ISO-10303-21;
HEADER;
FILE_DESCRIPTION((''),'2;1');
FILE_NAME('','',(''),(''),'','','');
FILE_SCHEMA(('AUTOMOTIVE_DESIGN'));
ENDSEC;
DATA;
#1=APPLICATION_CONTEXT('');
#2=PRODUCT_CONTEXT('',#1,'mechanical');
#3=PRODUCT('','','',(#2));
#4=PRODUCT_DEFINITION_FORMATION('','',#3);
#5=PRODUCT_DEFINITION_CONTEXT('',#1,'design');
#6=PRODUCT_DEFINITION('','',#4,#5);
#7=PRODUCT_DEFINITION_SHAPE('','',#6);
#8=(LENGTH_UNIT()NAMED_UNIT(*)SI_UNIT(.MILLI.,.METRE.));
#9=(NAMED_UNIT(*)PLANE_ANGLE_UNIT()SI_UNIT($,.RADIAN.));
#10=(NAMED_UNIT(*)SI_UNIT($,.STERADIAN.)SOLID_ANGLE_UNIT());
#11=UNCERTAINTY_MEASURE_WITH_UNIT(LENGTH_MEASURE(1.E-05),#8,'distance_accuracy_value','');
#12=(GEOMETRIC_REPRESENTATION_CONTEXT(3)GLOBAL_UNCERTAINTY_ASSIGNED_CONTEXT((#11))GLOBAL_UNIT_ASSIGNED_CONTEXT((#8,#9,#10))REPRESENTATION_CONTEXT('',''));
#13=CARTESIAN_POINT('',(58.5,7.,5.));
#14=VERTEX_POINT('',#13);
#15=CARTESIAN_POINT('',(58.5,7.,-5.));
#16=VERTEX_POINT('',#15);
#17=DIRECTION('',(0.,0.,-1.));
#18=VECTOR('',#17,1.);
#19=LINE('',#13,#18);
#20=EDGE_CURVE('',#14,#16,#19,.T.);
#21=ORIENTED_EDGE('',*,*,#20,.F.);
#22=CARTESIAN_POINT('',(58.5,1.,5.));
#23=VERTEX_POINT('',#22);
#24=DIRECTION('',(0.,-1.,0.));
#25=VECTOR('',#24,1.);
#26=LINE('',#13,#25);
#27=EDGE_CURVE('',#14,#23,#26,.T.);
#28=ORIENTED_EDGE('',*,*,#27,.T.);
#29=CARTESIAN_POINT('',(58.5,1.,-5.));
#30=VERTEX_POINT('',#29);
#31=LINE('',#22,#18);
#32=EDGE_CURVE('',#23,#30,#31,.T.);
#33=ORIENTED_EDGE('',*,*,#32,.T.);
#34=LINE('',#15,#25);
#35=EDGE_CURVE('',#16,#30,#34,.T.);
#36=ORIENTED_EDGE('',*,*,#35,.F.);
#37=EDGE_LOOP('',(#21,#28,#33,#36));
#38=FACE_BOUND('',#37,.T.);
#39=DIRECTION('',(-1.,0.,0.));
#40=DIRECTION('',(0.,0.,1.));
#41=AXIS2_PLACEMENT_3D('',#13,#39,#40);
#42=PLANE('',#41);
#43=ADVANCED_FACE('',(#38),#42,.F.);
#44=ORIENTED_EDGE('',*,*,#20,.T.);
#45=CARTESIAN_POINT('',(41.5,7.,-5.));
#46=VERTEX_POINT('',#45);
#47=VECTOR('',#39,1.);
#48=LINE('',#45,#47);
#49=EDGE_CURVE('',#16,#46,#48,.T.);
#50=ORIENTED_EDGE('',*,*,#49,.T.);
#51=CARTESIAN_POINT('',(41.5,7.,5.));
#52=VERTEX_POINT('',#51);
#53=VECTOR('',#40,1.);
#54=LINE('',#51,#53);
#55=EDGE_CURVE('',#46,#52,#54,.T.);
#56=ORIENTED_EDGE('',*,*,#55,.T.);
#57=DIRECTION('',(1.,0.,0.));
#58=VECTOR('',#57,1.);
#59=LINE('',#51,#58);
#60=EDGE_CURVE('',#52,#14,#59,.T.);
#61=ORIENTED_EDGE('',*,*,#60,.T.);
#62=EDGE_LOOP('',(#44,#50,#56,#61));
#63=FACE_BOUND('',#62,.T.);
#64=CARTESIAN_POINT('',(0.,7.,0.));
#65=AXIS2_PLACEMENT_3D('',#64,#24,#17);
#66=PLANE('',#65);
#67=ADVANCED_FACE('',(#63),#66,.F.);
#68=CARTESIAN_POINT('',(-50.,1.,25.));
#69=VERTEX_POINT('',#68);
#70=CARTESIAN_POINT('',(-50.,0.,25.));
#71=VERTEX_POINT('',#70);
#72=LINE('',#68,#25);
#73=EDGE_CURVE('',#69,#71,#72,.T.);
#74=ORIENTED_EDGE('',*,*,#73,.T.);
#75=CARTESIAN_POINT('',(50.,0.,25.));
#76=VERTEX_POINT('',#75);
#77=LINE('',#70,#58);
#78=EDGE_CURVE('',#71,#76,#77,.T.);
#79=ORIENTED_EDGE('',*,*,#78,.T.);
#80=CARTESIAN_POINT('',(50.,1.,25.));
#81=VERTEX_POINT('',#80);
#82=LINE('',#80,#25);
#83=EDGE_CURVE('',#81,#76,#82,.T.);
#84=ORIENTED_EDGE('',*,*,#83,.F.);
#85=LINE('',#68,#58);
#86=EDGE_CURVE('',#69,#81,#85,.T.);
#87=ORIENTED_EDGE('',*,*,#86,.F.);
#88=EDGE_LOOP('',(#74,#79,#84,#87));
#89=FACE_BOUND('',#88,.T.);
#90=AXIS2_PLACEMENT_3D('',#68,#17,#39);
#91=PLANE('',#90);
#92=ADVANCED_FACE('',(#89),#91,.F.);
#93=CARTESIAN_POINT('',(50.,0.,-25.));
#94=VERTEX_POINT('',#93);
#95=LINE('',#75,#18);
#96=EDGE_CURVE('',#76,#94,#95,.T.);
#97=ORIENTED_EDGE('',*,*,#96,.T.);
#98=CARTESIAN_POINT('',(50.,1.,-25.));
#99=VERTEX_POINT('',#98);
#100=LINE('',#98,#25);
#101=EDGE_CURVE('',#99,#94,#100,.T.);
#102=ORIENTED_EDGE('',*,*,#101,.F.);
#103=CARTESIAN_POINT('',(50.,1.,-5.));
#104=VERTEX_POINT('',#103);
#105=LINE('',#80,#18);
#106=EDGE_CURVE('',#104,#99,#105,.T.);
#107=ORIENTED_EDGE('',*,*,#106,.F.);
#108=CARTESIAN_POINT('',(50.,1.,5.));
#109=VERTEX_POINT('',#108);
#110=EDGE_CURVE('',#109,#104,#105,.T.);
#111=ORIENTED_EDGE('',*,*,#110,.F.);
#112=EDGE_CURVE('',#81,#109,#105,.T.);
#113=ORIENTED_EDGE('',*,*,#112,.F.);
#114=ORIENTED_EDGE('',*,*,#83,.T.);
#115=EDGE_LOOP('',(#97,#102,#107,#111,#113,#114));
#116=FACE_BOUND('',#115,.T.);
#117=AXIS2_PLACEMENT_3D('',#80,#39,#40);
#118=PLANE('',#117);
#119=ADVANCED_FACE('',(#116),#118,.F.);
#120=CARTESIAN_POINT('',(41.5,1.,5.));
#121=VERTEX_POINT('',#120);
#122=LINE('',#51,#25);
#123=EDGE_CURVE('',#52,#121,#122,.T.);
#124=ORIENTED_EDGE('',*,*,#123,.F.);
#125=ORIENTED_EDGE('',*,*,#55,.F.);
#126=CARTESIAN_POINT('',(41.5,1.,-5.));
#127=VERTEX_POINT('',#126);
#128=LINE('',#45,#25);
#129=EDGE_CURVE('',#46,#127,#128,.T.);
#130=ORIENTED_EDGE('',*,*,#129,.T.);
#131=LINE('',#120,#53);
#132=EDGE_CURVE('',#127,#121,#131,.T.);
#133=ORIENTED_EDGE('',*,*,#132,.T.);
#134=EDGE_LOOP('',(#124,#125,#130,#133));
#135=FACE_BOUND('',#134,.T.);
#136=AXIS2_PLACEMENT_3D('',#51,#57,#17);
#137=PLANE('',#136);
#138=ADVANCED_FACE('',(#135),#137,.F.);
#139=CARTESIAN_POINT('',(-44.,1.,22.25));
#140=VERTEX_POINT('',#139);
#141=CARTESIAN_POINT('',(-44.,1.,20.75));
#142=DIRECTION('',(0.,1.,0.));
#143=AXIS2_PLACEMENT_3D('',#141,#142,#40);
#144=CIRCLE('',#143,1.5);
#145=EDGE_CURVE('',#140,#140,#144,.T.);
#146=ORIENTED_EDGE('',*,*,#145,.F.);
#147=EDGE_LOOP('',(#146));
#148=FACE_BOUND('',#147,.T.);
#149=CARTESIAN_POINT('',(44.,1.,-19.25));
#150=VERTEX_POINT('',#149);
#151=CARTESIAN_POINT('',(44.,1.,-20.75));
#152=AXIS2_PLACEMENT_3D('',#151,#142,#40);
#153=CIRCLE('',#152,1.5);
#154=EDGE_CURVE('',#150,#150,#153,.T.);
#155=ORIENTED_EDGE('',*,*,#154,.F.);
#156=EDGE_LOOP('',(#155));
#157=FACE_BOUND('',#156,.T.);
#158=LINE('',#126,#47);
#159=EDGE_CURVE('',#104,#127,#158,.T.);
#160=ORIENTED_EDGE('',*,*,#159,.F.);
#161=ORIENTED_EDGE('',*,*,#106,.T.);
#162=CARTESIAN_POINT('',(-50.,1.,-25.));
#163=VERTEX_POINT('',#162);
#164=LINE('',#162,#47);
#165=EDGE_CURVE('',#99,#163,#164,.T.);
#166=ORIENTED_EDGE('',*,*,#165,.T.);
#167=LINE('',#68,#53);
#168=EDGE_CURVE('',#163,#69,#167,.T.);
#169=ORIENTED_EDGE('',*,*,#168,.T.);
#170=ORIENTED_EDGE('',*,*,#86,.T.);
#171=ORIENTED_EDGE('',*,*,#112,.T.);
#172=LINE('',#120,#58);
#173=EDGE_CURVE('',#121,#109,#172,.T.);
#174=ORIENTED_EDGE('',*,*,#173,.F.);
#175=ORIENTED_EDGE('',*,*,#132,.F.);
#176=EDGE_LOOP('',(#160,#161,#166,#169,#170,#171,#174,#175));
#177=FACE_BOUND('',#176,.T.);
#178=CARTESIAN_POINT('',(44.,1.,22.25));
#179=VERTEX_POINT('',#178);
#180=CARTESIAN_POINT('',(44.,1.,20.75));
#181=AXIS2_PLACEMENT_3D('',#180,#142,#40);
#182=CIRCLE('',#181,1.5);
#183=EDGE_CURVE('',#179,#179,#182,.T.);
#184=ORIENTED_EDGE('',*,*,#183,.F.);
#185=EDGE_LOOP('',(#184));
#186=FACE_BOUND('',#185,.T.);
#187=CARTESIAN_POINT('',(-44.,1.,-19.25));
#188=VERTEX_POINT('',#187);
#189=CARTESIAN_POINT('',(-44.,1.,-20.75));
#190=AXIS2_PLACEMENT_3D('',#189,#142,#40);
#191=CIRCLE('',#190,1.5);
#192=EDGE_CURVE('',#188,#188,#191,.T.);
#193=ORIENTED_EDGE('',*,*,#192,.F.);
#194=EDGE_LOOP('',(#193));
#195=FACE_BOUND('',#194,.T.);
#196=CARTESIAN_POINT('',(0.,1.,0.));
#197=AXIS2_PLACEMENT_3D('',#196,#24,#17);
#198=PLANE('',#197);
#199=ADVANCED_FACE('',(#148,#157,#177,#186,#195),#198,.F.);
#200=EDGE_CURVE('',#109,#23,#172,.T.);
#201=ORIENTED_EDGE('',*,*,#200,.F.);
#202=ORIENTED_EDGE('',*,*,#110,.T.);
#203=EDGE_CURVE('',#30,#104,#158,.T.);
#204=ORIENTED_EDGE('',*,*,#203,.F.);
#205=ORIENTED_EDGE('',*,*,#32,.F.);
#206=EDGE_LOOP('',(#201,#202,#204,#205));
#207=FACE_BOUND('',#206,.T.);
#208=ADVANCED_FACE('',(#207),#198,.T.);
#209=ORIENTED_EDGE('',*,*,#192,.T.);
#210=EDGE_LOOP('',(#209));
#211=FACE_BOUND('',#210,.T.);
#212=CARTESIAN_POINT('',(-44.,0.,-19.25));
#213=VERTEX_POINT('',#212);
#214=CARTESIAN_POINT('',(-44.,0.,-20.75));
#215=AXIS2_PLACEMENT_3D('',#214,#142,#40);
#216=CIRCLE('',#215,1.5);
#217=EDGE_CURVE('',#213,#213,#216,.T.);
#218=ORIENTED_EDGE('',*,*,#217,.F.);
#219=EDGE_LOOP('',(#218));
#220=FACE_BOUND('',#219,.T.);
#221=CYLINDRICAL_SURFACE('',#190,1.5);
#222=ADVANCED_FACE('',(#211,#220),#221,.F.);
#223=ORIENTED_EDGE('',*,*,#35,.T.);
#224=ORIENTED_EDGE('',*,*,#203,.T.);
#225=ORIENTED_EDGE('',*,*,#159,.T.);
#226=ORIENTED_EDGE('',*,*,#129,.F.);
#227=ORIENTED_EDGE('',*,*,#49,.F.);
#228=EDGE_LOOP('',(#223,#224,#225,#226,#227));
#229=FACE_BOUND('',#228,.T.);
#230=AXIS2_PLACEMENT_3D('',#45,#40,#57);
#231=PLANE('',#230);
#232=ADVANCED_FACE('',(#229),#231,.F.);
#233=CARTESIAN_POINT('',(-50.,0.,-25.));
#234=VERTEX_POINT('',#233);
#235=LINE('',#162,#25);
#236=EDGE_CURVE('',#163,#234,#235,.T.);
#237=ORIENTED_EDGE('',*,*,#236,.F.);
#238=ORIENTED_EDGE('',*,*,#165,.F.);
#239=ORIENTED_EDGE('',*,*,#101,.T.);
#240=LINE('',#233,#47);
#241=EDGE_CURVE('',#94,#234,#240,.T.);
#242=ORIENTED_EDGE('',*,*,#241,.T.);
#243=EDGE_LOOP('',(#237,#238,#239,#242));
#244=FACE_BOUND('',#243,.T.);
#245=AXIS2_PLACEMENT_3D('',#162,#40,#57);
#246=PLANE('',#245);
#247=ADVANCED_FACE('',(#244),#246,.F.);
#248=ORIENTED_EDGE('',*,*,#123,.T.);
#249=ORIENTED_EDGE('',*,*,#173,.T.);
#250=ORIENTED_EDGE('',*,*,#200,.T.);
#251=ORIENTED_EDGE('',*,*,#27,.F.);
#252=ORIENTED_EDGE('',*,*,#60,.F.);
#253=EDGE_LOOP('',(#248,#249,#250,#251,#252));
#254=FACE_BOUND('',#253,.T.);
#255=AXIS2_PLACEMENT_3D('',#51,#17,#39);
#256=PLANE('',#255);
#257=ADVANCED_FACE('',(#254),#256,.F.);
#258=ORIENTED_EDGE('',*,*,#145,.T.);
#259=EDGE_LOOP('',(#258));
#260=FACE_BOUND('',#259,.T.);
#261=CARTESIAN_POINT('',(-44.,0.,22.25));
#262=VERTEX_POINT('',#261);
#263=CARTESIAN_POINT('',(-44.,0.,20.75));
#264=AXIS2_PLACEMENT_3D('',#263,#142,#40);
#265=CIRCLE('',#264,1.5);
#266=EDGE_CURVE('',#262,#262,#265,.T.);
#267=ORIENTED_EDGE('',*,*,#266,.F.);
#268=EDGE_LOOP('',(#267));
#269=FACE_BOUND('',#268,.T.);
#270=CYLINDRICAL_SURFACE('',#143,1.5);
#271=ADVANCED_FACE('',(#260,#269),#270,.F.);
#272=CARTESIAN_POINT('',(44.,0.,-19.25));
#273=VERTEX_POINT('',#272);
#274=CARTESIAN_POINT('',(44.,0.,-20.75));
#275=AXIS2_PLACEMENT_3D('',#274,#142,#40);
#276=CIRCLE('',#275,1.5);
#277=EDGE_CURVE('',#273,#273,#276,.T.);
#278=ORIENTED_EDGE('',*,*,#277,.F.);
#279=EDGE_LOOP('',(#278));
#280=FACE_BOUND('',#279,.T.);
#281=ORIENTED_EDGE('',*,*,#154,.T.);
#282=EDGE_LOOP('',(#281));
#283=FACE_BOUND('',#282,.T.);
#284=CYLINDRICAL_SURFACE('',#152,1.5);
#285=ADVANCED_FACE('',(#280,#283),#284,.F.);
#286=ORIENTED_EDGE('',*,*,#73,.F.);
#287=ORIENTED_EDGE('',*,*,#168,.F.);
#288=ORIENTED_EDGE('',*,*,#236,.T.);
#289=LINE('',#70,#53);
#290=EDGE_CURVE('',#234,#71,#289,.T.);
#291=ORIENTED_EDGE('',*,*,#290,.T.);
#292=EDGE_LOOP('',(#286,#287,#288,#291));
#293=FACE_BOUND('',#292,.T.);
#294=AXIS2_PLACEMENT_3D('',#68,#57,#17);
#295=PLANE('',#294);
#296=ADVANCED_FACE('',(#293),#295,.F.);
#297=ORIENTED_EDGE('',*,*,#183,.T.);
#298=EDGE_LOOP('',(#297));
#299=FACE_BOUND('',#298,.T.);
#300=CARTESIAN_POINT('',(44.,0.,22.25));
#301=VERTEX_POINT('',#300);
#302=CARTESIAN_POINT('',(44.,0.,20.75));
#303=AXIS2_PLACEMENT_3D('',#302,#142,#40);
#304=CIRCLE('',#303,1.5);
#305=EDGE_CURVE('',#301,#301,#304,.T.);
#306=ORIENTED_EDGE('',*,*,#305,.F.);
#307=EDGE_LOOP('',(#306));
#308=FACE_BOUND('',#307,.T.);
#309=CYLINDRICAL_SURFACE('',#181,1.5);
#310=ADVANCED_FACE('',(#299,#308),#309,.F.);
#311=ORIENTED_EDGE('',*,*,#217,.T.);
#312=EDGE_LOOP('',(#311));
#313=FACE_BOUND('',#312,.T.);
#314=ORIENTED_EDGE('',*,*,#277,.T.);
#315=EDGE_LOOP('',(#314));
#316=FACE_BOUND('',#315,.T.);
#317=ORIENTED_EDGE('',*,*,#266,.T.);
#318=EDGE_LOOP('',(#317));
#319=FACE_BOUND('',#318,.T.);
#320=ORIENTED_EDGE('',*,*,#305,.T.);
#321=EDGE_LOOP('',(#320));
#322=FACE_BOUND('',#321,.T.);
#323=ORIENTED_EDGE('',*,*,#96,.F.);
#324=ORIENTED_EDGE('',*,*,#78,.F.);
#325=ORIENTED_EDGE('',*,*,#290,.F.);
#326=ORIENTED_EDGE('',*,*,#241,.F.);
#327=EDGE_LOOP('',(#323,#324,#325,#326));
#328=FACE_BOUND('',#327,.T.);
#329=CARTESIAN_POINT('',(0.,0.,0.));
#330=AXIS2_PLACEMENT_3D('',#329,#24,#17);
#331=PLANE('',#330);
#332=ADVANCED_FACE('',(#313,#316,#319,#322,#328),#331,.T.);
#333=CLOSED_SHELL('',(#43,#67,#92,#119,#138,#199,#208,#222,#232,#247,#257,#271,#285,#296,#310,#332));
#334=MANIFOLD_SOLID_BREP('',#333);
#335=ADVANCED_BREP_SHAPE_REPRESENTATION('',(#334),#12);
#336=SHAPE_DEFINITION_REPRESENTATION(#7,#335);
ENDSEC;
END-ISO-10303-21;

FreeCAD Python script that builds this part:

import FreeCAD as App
import Part
import Sketcher
from FreeCAD import Vector


def add_polygon(sketch, points):
    """Adds a closed chain of lines whose ends are joined by coincident constraints."""
    first, n = sketch.GeometryCount, len(points)
    for a, b in zip(points, points[1:] + points[:1]):
        sketch.addGeometry(Part.LineSegment(App.Vector(*a, 0), App.Vector(*b, 0)), False)
    for i in range(n):
        sketch.addConstraint(Sketcher.Constraint("Coincident", first + i, 2, first + (i + 1) % n, 1))

doc = App.newDocument("Part")
body = doc.addObject("PartDesign::Body", "Body")

# Sketch on XZ plane
sketch1 = body.newObject("Sketcher::SketchObject", "Sketch")
sketch1.AttachmentSupport = (doc.getObject("XZ_Plane"), [""])
sketch1.MapMode = "FlatFace"
add_polygon(sketch1, [(-50, -25), (-50, 25), (50, 25), (50, -25)])  # lines 0-3
sketch1.addConstraint(Sketcher.Constraint("Vertical", 0))
sketch1.addConstraint(Sketcher.Constraint("Horizontal", 1))
sketch1.addConstraint(Sketcher.Constraint("Vertical", 2))
sketch1.addConstraint(Sketcher.Constraint("Horizontal", 3))
sketch1.addConstraint(Sketcher.Constraint("Symmetric", 0, 2, 2, 2, -1, 1))
sketch1.addConstraint(Sketcher.Constraint("DistanceX", 1, 1, 1, 2, 100.0))
sketch1.addConstraint(Sketcher.Constraint("DistanceY", 0, 1, 0, 2, 50.0))
pad1 = body.newObject("PartDesign::Pad", "Pad")
pad1.Profile = sketch1
pad1.Length = 1
pad1.Reversed = True

# Sketch on XZ plane
sketch2 = body.newObject("Sketcher::SketchObject", "Sketch001")
sketch2.AttachmentSupport = (doc.getObject("XZ_Plane"), [""])
sketch2.MapMode = "FlatFace"
sketch2.AttachmentOffset = App.Placement(Vector(0, 0, -1), App.Rotation())
add_polygon(sketch2, [(42, -5), (42, 5), (58, 5), (58, -5)])  # lines 0-3
sketch2.addConstraint(Sketcher.Constraint("Vertical", 0))
sketch2.addConstraint(Sketcher.Constraint("Horizontal", 1))
sketch2.addConstraint(Sketcher.Constraint("Vertical", 2))
sketch2.addConstraint(Sketcher.Constraint("Horizontal", 3))
sketch2.addConstraint(Sketcher.Constraint("DistanceX", 1, 1, 1, 2, 17.0))
sketch2.addConstraint(Sketcher.Constraint("DistanceY", 0, 1, 0, 2, 10.0))
sketch2.addConstraint(Sketcher.Constraint("DistanceY", -1, 1, 0, 2, 5.0))
sketch2.addConstraint(Sketcher.Constraint("DistanceX", -1, 1, 0, 2, 41.5))
pad2 = body.newObject("PartDesign::Pad", "Pad001")
pad2.Profile = sketch2
pad2.Length = 6
pad2.Reversed = True

# Sketch on XZ plane
sketch3 = body.newObject("Sketcher::SketchObject", "Sketch002")
sketch3.AttachmentSupport = (doc.getObject("XZ_Plane"), [""])
sketch3.MapMode = "FlatFace"
sketch3.AttachmentOffset = App.Placement(Vector(0, 0, -1), App.Rotation())
sketch3.addGeometry(Part.Circle(Vector(-44, -20.8, 0), Vector(0, 0, 1), 1.5), False)
sketch3.addGeometry(Part.Circle(Vector(-44, 20.8, 0), Vector(0, 0, 1), 1.5), False)
sketch3.addGeometry(Part.Circle(Vector(44, 20.8, 0), Vector(0, 0, 1), 1.5), False)
sketch3.addGeometry(Part.Circle(Vector(44, -20.8, 0), Vector(0, 0, 1), 1.5), False)
sketch3.addConstraint(Sketcher.Constraint("Equal", 0, 1))
sketch3.addConstraint(Sketcher.Constraint("Equal", 1, 2))
sketch3.addConstraint(Sketcher.Constraint("Equal", 2, 3))
sketch3.addConstraint(Sketcher.Constraint("Symmetric", 0, 3, 2, 3, -1, 1))
sketch3.addConstraint(Sketcher.Constraint("Symmetric", 1, 3, 3, 3, -1, 1))
sketch3.addConstraint(Sketcher.Constraint("Symmetric", 1, 3, 2, 3, -2))
sketch3.addConstraint(Sketcher.Constraint("Diameter", 0, 3.0))
sketch3.addConstraint(Sketcher.Constraint("DistanceX", 0, 3, -1, 1, 44.0))
sketch3.addConstraint(Sketcher.Constraint("DistanceY", 0, 3, 1, 3, 41.5))
doc.recompute()
hole = body.newObject("PartDesign::Hole", "Hole")
hole.Profile = sketch3
hole.ThreadType = "None"
hole.Diameter = 3
hole.DepthType = "ThroughAll"
hole.Reversed = True

doc.recompute()
